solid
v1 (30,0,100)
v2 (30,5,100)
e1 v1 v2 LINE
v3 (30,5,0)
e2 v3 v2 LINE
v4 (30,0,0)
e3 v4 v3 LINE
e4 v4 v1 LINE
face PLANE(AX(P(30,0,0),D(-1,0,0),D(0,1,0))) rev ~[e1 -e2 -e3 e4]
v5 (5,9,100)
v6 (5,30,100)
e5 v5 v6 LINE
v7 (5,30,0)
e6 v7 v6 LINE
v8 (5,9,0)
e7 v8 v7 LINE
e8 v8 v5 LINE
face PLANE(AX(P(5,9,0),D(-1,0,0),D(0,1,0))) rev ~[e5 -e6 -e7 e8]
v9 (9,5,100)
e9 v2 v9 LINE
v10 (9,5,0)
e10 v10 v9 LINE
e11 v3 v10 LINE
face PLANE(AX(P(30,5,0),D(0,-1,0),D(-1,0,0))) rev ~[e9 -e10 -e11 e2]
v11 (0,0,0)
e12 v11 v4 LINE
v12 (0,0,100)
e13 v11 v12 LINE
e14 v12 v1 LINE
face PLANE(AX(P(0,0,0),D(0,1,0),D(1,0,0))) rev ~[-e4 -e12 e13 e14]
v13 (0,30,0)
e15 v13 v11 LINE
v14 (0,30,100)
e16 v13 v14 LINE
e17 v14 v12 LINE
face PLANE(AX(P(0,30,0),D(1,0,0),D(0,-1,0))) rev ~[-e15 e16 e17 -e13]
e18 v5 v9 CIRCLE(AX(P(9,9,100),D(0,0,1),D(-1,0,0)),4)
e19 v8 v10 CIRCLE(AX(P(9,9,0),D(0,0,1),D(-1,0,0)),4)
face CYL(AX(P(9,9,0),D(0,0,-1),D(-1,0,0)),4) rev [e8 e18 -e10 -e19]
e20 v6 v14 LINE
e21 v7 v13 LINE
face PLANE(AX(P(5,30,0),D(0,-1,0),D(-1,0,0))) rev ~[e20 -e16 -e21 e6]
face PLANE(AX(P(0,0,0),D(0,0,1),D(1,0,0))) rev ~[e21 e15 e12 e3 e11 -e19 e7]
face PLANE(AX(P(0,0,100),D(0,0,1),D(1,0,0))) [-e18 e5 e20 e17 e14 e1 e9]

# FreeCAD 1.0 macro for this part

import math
import FreeCAD as App
import Part
import Sketcher
from FreeCAD import Vector
Q = App.Units.Quantity

doc = App.newDocument("Part")
body = doc.addObject("PartDesign::Body", "Body")

sketch1 = body.newObject("Sketcher::SketchObject", "Sketch")
sketch1.AttachmentSupport = (doc.getObject("XY_Plane"), [""])
sketch1.MapMode = "FlatFace"
sketch1.addGeometry(Part.LineSegment(Vector(30, 0, 0), Vector(30, 5, 0)), False)
sketch1.addGeometry(Part.LineSegment(Vector(30, 5, 0), Vector(9, 5, 0)), False)
sketch1.addGeometry(Part.ArcOfCircle(Part.Circle(Vector(9, 9, 0), Vector(0, 0, 1), 4), math.radians(180), math.radians(270)), False)
sketch1.addGeometry(Part.LineSegment(Vector(5, 9, 0), Vector(5, 30, 0)), False)
sketch1.addGeometry(Part.LineSegment(Vector(5, 30, 0), Vector(0, 30, 0)), False)
sketch1.addGeometry(Part.LineSegment(Vector(0, 30, 0), Vector(0, 0, 0)), False)
sketch1.addGeometry(Part.LineSegment(Vector(0, 0, 0), Vector(30, 0, 0)), False)
sketch1.addConstraint(Sketcher.Constraint("Coincident", 0, 2, 1, 1))
sketch1.addConstraint(Sketcher.Constraint("Tangent", 1, 2, 2, 2))
sketch1.addConstraint(Sketcher.Constraint("Tangent", 2, 1, 3, 1))
sketch1.addConstraint(Sketcher.Constraint("Coincident", 3, 2, 4, 1))
sketch1.addConstraint(Sketcher.Constraint("Coincident", 4, 2, 5, 1))
sketch1.addConstraint(Sketcher.Constraint("Coincident", 5, 2, 6, 1))
sketch1.addConstraint(Sketcher.Constraint("Coincident", 6, 2, 0, 1))
sketch1.addConstraint(Sketcher.Constraint("Vertical", 0))
sketch1.addConstraint(Sketcher.Constraint("Horizontal", 1))
sketch1.addConstraint(Sketcher.Constraint("Vertical", 3))
sketch1.addConstraint(Sketcher.Constraint("Horizontal", 4))
sketch1.addConstraint(Sketcher.Constraint("Vertical", 5))
sketch1.addConstraint(Sketcher.Constraint("Horizontal", 6))
sketch1.addConstraint(Sketcher.Constraint("Coincident", 5, 2, -1, 1))
sketch1.addConstraint(Sketcher.Constraint("Equal", 4, 0))
sketch1.addConstraint(Sketcher.Constraint("Equal", 1, 3))
sketch1.addConstraint(Sketcher.Constraint("Radius", 2, Q("4 mm")))
sketch1.addConstraint(Sketcher.Constraint("DistanceX", 1, 2, 1, 1, Q("21 mm")))
sketch1.addConstraint(Sketcher.Constraint("DistanceX", 4, 2, 4, 1, Q("5 mm")))
pad1 = body.newObject("PartDesign::Pad", "Pad")
pad1.Profile = sketch1
pad1.Length = 100

doc.recompute()
